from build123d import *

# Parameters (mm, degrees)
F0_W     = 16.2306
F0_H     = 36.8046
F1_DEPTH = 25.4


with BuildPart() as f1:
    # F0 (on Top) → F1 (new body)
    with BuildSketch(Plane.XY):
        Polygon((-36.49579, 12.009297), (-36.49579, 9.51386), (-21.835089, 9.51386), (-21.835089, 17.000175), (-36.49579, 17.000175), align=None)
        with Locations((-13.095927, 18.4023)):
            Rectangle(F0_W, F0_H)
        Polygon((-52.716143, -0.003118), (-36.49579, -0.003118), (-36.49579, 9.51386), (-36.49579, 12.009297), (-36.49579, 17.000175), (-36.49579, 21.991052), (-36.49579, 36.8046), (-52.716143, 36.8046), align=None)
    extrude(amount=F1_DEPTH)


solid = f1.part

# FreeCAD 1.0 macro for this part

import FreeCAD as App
import Part
import Sketcher

V = App.Vector
Q = App.Units.Quantity


def add_polygon(sketch, points):
    """Adds a closed chain of lines whose ends are joined by coincident constraints."""
    first, n = sketch.GeometryCount, len(points)
    for a, b in zip(points, points[1:] + points[:1]):
        sketch.addGeometry(Part.LineSegment(App.Vector(*a, 0), App.Vector(*b, 0)), False)
    for i in range(n):
        sketch.addConstraint(Sketcher.Constraint("Coincident", first + i, 2, first + (i + 1) % n, 1))

doc = App.newDocument("Part")
body = doc.addObject("PartDesign::Body", "Body")
body.AllowCompound = True

sketch1 = body.newObject("Sketcher::SketchObject", "Sketch")
sketch1.AttachmentSupport = (doc.getObject("XY_Plane"), [""])
sketch1.MapMode = "FlatFace"
add_polygon(sketch1, [(-36, 10), (-22, 10), (-22, 17), (-36, 17), (-36, 37), (-53, 37), (-53, 0), (-36, 0)])
add_polygon(sketch1, [(-21, 37), (-21, 0), (-5, 0), (-5, 37)])
sketch1.addConstraint(Sketcher.Constraint("Horizontal", 0))
sketch1.addConstraint(Sketcher.Constraint("Vertical", 1))
sketch1.addConstraint(Sketcher.Constraint("Horizontal", 2))
sketch1.addConstraint(Sketcher.Constraint("Vertical", 3))
sketch1.addConstraint(Sketcher.Constraint("Horizontal", 4))
sketch1.addConstraint(Sketcher.Constraint("Vertical", 5))
sketch1.addConstraint(Sketcher.Constraint("Horizontal", 6))
sketch1.addConstraint(Sketcher.Constraint("Vertical", 7))
sketch1.addConstraint(Sketcher.Constraint("Vertical", 8))
sketch1.addConstraint(Sketcher.Constraint("Horizontal", 9))
sketch1.addConstraint(Sketcher.Constraint("Vertical", 10))
sketch1.addConstraint(Sketcher.Constraint("Horizontal", 11))
sketch1.addConstraint(Sketcher.Constraint("PointOnObject", 8, 2, -1))
sketch1.addConstraint(Sketcher.Constraint("Horizontal", 4, 2, 10, 2))
sketch1.addConstraint(Sketcher.Constraint("Vertical", 3, 2, 6, 2))
sketch1.addConstraint(Sketcher.Constraint("DistanceX", 9, 1, 9, 2, Q("0.639 in")))
sketch1.addConstraint(Sketcher.Constraint("DistanceY", 8, 2, 8, 1, Q("1.449 in")))
sketch1.addConstraint(Sketcher.Constraint("DistanceX", 0, 1, 0, 2, Q("14.660701 mm")))
sketch1.addConstraint(Sketcher.Constraint("DistanceX", 4, 2, 4, 1, Q("16.220353 mm")))
sketch1.addConstraint(Sketcher.Constraint("DistanceY", 1, 1, 1, 2, Q("7.486315 mm")))
sketch1.addConstraint(Sketcher.Constraint("DistanceY", 3, 1, 3, 2, Q("19.804425 mm")))
sketch1.addConstraint(Sketcher.Constraint("DistanceY", 5, 2, 5, 1, Q("36.807718 mm")))
sketch1.addConstraint(Sketcher.Constraint("DistanceX", 0, 2, -1, 1, Q("21.835089 mm")))
sketch1.addConstraint(Sketcher.Constraint("DistanceX", 0, 2, 8, 2, Q("0.623862 mm")))
pad1 = body.newObject("PartDesign::Pad", "Pad")
pad1.Profile = sketch1
pad1.Length = Q("1 in")

doc.recompute()
